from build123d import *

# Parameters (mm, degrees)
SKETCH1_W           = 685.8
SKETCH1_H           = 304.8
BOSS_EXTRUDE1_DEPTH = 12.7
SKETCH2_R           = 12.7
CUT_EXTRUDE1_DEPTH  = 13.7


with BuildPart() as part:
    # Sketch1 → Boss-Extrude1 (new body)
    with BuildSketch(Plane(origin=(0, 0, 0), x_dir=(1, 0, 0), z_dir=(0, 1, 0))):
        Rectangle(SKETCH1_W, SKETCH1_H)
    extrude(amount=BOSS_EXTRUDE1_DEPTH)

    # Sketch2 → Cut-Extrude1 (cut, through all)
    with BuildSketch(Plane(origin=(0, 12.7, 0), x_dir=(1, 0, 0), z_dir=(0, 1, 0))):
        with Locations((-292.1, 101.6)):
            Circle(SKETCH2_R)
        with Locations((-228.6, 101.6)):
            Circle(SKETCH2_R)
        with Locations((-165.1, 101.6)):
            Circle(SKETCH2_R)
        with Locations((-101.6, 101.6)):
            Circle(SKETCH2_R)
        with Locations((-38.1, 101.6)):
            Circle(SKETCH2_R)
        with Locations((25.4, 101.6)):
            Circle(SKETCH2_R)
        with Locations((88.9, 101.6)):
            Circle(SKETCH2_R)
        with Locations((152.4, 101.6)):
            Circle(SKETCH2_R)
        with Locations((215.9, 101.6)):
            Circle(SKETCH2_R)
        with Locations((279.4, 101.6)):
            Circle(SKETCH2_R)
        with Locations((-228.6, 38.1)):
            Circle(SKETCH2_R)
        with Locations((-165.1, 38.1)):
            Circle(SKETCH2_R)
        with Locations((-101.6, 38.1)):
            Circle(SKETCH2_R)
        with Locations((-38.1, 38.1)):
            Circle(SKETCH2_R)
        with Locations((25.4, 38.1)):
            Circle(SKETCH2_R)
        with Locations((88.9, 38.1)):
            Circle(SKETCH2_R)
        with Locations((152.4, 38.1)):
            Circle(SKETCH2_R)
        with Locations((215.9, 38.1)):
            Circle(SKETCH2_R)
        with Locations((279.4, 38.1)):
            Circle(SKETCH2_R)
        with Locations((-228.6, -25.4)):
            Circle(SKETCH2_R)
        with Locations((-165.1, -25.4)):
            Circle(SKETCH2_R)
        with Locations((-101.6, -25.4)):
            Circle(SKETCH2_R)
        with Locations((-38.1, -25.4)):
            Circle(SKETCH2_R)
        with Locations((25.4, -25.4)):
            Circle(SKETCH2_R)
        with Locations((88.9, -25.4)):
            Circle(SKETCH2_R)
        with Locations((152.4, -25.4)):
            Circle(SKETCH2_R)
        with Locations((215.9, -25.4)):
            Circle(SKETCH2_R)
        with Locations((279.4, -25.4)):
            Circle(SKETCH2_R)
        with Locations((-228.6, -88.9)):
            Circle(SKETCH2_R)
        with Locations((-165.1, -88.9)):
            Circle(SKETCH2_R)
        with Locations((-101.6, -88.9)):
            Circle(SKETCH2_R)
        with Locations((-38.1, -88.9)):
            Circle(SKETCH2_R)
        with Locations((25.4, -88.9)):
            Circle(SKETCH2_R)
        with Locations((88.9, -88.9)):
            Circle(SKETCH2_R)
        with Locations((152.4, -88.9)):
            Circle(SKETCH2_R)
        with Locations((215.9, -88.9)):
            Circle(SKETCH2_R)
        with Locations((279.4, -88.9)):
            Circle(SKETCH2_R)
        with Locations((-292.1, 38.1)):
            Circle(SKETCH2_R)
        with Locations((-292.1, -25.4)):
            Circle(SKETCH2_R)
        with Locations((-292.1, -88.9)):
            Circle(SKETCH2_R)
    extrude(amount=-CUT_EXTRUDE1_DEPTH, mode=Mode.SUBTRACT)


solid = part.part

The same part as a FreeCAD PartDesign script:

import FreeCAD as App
import Part
import Sketcher

V = App.Vector
Q = App.Units.Quantity


def add_polygon(sketch, points):
    """Adds a closed chain of lines whose ends are joined by coincident constraints."""
    first, n = sketch.GeometryCount, len(points)
    for a, b in zip(points, points[1:] + points[:1]):
        sketch.addGeometry(Part.LineSegment(App.Vector(*a, 0), App.Vector(*b, 0)), False)
    for i in range(n):
        sketch.addConstraint(Sketcher.Constraint("Coincident", first + i, 2, first + (i + 1) % n, 1))

doc = App.newDocument("Part")
body = doc.addObject("PartDesign::Body", "Body")

# Sketch on XZ plane
sketch1 = body.newObject("Sketcher::SketchObject", "Sketch")
sketch1.AttachmentSupport = (doc.getObject("XZ_Plane"), [""])
sketch1.MapMode = "FlatFace"
add_polygon(sketch1, [(-342.9, -152.4), (-342.9, 152.4), (342.9, 152.4), (342.9, -152.4)])  # lines 0-3
sketch1.addConstraint([
    Sketcher.Constraint("Vertical", 0),
    Sketcher.Constraint("Horizontal", 1),
    Sketcher.Constraint("Vertical", 2),
    Sketcher.Constraint("Horizontal", 3),
    Sketcher.Constraint("Symmetric", 0, 2, 2, 2, -1, 1),
    Sketcher.Constraint("DistanceX", 1, 1, 1, 2, Q("27 in")),
    Sketcher.Constraint("DistanceY", 0, 1, 0, 2, Q("12 in")),
])
pad1 = body.newObject("PartDesign::Pad", "Pad")
pad1.Profile = sketch1
pad1.Length = Q("0.5 in")
pad1.Reversed = True

# Sketch on XZ plane
sketch2 = body.newObject("Sketcher::SketchObject", "Sketch001")
sketch2.AttachmentSupport = (doc.getObject("XZ_Plane"), [""])
sketch2.MapMode = "FlatFace"
sketch2.AttachmentOffset = App.Placement(V(0, 0, -0.5 * 25.4), App.Rotation())
sketch2.addGeometry([
    Part.Circle(V(-292.1, -101.6, 0), V(0, 0, 1), 12.7),  # 0
    Part.Circle(V(-228.6, -101.6, 0), V(0, 0, 1), 12.7),  # 1
    Part.Circle(V(-165.1, -101.6, 0), V(0, 0, 1), 12.7),  # 2
    Part.Circle(V(-101.6, -101.6, 0), V(0, 0, 1), 12.7),  # 3
    Part.Circle(V(-38.1, -101.6, 0), V(0, 0, 1), 12.7),  # 4
    Part.Circle(V(25.4, -101.6, 0), V(0, 0, 1), 12.7),  # 5
    Part.Circle(V(88.9, -101.6, 0), V(0, 0, 1), 12.7),  # 6
    Part.Circle(V(152.4, -101.6, 0), V(0, 0, 1), 12.7),  # 7
    Part.Circle(V(215.9, -101.6, 0), V(0, 0, 1), 12.7),  # 8
    Part.Circle(V(279.4, -101.6, 0), V(0, 0, 1), 12.7),  # 9
    Part.Circle(V(-228.6, -38.1, 0), V(0, 0, 1), 12.7),  # 10
    Part.Circle(V(-165.1, -38.1, 0), V(0, 0, 1), 12.7),  # 11
    Part.Circle(V(-101.6, -38.1, 0), V(0, 0, 1), 12.7),  # 12
    Part.Circle(V(-38.1, -38.1, 0), V(0, 0, 1), 12.7),  # 13
    Part.Circle(V(25.4, -38.1, 0), V(0, 0, 1), 12.7),  # 14
    Part.Circle(V(88.9, -38.1, 0), V(0, 0, 1), 12.7),  # 15
    Part.Circle(V(152.4, -38.1, 0), V(0, 0, 1), 12.7),  # 16
    Part.Circle(V(215.9, -38.1, 0), V(0, 0, 1), 12.7),  # 17
    Part.Circle(V(279.4, -38.1, 0), V(0, 0, 1), 12.7),  # 18
    Part.Circle(V(-228.6, 25.4, 0), V(0, 0, 1), 12.7),  # 19
    Part.Circle(V(-165.1, 25.4, 0), V(0, 0, 1), 12.7),  # 20
    Part.Circle(V(-101.6, 25.4, 0), V(0, 0, 1), 12.7),  # 21
    Part.Circle(V(-38.1, 25.4, 0), V(0, 0, 1), 12.7),  # 22
    Part.Circle(V(25.4, 25.4, 0), V(0, 0, 1), 12.7),  # 23
    Part.Circle(V(88.9, 25.4, 0), V(0, 0, 1), 12.7),  # 24
    Part.Circle(V(152.4, 25.4, 0), V(0, 0, 1), 12.7),  # 25
    Part.Circle(V(215.9, 25.4, 0), V(0, 0, 1), 12.7),  # 26
    Part.Circle(V(279.4, 25.4, 0), V(0, 0, 1), 12.7),  # 27
    Part.Circle(V(-228.6, 88.9, 0), V(0, 0, 1), 12.7),  # 28
    Part.Circle(V(-165.1, 88.9, 0), V(0, 0, 1), 12.7),  # 29
    Part.Circle(V(-101.6, 88.9, 0), V(0, 0, 1), 12.7),  # 30
    Part.Circle(V(-38.1, 88.9, 0), V(0, 0, 1), 12.7),  # 31
    Part.Circle(V(25.4, 88.9, 0), V(0, 0, 1), 12.7),  # 32
    Part.Circle(V(88.9, 88.9, 0), V(0, 0, 1), 12.7),  # 33
    Part.Circle(V(152.4, 88.9, 0), V(0, 0, 1), 12.7),  # 34
    Part.Circle(V(215.9, 88.9, 0), V(0, 0, 1), 12.7),  # 35
    Part.Circle(V(279.4, 88.9, 0), V(0, 0, 1), 12.7),  # 36
    Part.Circle(V(-292.1, -38.1, 0), V(0, 0, 1), 12.7),  # 37
    Part.Circle(V(-292.1, 25.4, 0), V(0, 0, 1), 12.7),  # 38
    Part.Circle(V(-292.1, 88.9, 0), V(0, 0, 1), 12.7),  # 39
], False)
sketch2.addConstraint([
    Sketcher.Constraint("Equal", 0, 1),
    Sketcher.Constraint("Equal", 1, 2),
    Sketcher.Constraint("Equal", 2, 3),
    Sketcher.Constraint("Equal", 3, 4),
    Sketcher.Constraint("Equal", 4, 5),
    Sketcher.Constraint("Equal", 5, 6),
    Sketcher.Constraint("Equal", 6, 7),
    Sketcher.Constraint("Equal", 7, 8),
    Sketcher.Constraint("Equal", 8, 9),
    Sketcher.Constraint("Equal", 9, 10),
    Sketcher.Constraint("Equal", 10, 11),
    Sketcher.Constraint("Equal", 11, 12),
    Sketcher.Constraint("Equal", 12, 13),
    Sketcher.Constraint("Equal", 13, 14),
    Sketcher.Constraint("Equal", 14, 15),
    Sketcher.Constraint("Equal", 15, 16),
    Sketcher.Constraint("Equal", 16, 17),
    Sketcher.Constraint("Equal", 17, 18),
    Sketcher.Constraint("Equal", 18, 19),
    Sketcher.Constraint("Equal", 19, 20),
    Sketcher.Constraint("Equal", 20, 21),
    Sketcher.Constraint("Equal", 21, 22),
    Sketcher.Constraint("Equal", 22, 23),
    Sketcher.Constraint("Equal", 23, 24),
    Sketcher.Constraint("Equal", 24, 25),
    Sketcher.Constraint("Equal", 25, 26),
    Sketcher.Constraint("Equal", 26, 27),
    Sketcher.Constraint("Equal", 27, 28),
    Sketcher.Constraint("Equal", 28, 29),
    Sketcher.Constraint("Equal", 29, 30),
    Sketcher.Constraint("Equal", 30, 31),
    Sketcher.Constraint("Equal", 31, 32),
    Sketcher.Constraint("Equal", 32, 33),
    Sketcher.Constraint("Equal", 33, 34),
    Sketcher.Constraint("Equal", 34, 35),
    Sketcher.Constraint("Equal", 35, 36),
    Sketcher.Constraint("Equal", 36, 37),
    Sketcher.Constraint("Equal", 37, 38),
    Sketcher.Constraint("Equal", 38, 39),
    Sketcher.Constraint("Horizontal", 0, 3, 1, 3),
    Sketcher.Constraint("Horizontal", 1, 3, 2, 3),
    Sketcher.Constraint("Horizontal", 2, 3, 3, 3),
    Sketcher.Constraint("Horizontal", 3, 3, 4, 3),
    Sketcher.Constraint("Horizontal", 4, 3, 5, 3),
    Sketcher.Constraint("Horizontal", 5, 3, 6, 3),
    Sketcher.Constraint("Horizontal", 6, 3, 7, 3),
    Sketcher.Constraint("Horizontal", 7, 3, 8, 3),
    Sketcher.Constraint("Horizontal", 8, 3, 9, 3),
    Sketcher.Constraint("Horizontal", 10, 3, 11, 3),
    Sketcher.Constraint("Horizontal", 11, 3, 12, 3),
    Sketcher.Constraint("Horizontal", 12, 3, 13, 3),
    Sketcher.Constraint("Horizontal", 13, 3, 14, 3),
    Sketcher.Constraint("Horizontal", 14, 3, 15, 3),
    Sketcher.Constraint("Horizontal", 15, 3, 16, 3),
    Sketcher.Constraint("Horizontal", 16, 3, 17, 3),
    Sketcher.Constraint("Horizontal", 17, 3, 18, 3),
    Sketcher.Constraint("Horizontal", 19, 3, 20, 3),
    Sketcher.Constraint("Horizontal", 20, 3, 21, 3),
    Sketcher.Constraint("Horizontal", 21, 3, 22, 3),
    Sketcher.Constraint("Horizontal", 22, 3, 23, 3),
    Sketcher.Constraint("Horizontal", 23, 3, 24, 3),
    Sketcher.Constraint("Horizontal", 24, 3, 25, 3),
    Sketcher.Constraint("Horizontal", 25, 3, 26, 3),
    Sketcher.Constraint("Horizontal", 26, 3, 27, 3),
    Sketcher.Constraint("Horizontal", 28, 3, 29, 3),
    Sketcher.Constraint("Horizontal", 29, 3, 30, 3),
    Sketcher.Constraint("Horizontal", 30, 3, 31, 3),
    Sketcher.Constraint("Horizontal", 31, 3, 32, 3),
    Sketcher.Constraint("Horizontal", 32, 3, 33, 3),
    Sketcher.Constraint("Horizontal", 33, 3, 34, 3),
    Sketcher.Constraint("Horizontal", 34, 3, 35, 3),
    Sketcher.Constraint("Horizontal", 35, 3, 36, 3),
    Sketcher.Constraint("Horizontal", 18, 3, 37, 3),
    Sketcher.Constraint("Horizontal", 27, 3, 38, 3),
    Sketcher.Constraint("Horizontal", 36, 3, 39, 3),
    Sketcher.Constraint("Vertical", 1, 3, 10, 3),
    Sketcher.Constraint("Vertical", 2, 3, 11, 3),
    Sketcher.Constraint("Vertical", 3, 3, 12, 3),
    Sketcher.Constraint("Vertical", 4, 3, 13, 3),
    Sketcher.Constraint("Vertical", 5, 3, 14, 3),
    Sketcher.Constraint("Vertical", 6, 3, 15, 3),
    Sketcher.Constraint("Vertical", 7, 3, 16, 3),
    Sketcher.Constraint("Vertical", 8, 3, 17, 3),
    Sketcher.Constraint("Vertical", 9, 3, 18, 3),
    Sketcher.Constraint("Vertical", 10, 3, 19, 3),
    Sketcher.Constraint("Vertical", 11, 3, 20, 3),
    Sketcher.Constraint("Vertical", 12, 3, 21, 3),
    Sketcher.Constraint("Vertical", 13, 3, 22, 3),
    Sketcher.Constraint("Vertical", 14, 3, 23, 3),
    Sketcher.Constraint("Vertical", 15, 3, 24, 3),
    Sketcher.Constraint("Vertical", 16, 3, 25, 3),
    Sketcher.Constraint("Vertical", 17, 3, 26, 3),
    Sketcher.Constraint("Vertical", 18, 3, 27, 3),
    Sketcher.Constraint("Vertical", 19, 3, 28, 3),
    Sketcher.Constraint("Vertical", 20, 3, 29, 3),
    Sketcher.Constraint("Vertical", 21, 3, 30, 3),
    Sketcher.Constraint("Vertical", 22, 3, 31, 3),
    Sketcher.Constraint("Vertical", 23, 3, 32, 3),
    Sketcher.Constraint("Vertical", 24, 3, 33, 3),
    Sketcher.Constraint("Vertical", 25, 3, 34, 3),
    Sketcher.Constraint("Vertical", 26, 3, 35, 3),
    Sketcher.Constraint("Vertical", 27, 3, 36, 3),
    Sketcher.Constraint("Vertical", 0, 3, 37, 3),
    Sketcher.Constraint("Vertical", 37, 3, 38, 3),
    Sketcher.Constraint("Vertical", 38, 3, 39, 3),
    Sketcher.Constraint("Diameter", 0, Q("1 in")),
    Sketcher.Constraint("DistanceY", 0, 3, -1, 1, Q("4 in")),
    Sketcher.Constraint("DistanceX", 1, 3, -1, 1, Q("9 in")),
    Sketcher.Constraint("DistanceX", 3, 3, -1, 1, Q("4 in")),
    Sketcher.Constraint("DistanceX", -1, 1, 5, 3, Q("1 in")),
    Sketcher.Constraint("DistanceX", -1, 1, 7, 3, Q("6 in")),
    Sketcher.Constraint("DistanceX", -1, 1, 9, 3, Q("11 in")),
    Sketcher.Constraint("DistanceY", -1, 1, 19, 3, Q("1 in")),
    Sketcher.Constraint("DistanceX", 0, 3, 2, 3, Q("5 in")),
    Sketcher.Constraint("DistanceX", 2, 3, 4, 3, Q("5 in")),
    Sketcher.Constraint("DistanceX", 4, 3, 6, 3, Q("5 in")),
    Sketcher.Constraint("DistanceX", 6, 3, 8, 3, Q("5 in")),
    Sketcher.Constraint("DistanceY", 10, 3, 28, 3, Q("5 in")),
    Sketcher.Constraint("DistanceX", 0, 3, -1, 1, Q("11.5 in")),
    Sketcher.Constraint("DistanceY", 10, 3, -1, 1, Q("1.5 in")),
])
pocket1 = body.newObject("PartDesign::Pocket", "Pocket")
pocket1.Profile = sketch2
pocket1.Type = "ThroughAll"
pocket1.Reversed = True

doc.recompute()
